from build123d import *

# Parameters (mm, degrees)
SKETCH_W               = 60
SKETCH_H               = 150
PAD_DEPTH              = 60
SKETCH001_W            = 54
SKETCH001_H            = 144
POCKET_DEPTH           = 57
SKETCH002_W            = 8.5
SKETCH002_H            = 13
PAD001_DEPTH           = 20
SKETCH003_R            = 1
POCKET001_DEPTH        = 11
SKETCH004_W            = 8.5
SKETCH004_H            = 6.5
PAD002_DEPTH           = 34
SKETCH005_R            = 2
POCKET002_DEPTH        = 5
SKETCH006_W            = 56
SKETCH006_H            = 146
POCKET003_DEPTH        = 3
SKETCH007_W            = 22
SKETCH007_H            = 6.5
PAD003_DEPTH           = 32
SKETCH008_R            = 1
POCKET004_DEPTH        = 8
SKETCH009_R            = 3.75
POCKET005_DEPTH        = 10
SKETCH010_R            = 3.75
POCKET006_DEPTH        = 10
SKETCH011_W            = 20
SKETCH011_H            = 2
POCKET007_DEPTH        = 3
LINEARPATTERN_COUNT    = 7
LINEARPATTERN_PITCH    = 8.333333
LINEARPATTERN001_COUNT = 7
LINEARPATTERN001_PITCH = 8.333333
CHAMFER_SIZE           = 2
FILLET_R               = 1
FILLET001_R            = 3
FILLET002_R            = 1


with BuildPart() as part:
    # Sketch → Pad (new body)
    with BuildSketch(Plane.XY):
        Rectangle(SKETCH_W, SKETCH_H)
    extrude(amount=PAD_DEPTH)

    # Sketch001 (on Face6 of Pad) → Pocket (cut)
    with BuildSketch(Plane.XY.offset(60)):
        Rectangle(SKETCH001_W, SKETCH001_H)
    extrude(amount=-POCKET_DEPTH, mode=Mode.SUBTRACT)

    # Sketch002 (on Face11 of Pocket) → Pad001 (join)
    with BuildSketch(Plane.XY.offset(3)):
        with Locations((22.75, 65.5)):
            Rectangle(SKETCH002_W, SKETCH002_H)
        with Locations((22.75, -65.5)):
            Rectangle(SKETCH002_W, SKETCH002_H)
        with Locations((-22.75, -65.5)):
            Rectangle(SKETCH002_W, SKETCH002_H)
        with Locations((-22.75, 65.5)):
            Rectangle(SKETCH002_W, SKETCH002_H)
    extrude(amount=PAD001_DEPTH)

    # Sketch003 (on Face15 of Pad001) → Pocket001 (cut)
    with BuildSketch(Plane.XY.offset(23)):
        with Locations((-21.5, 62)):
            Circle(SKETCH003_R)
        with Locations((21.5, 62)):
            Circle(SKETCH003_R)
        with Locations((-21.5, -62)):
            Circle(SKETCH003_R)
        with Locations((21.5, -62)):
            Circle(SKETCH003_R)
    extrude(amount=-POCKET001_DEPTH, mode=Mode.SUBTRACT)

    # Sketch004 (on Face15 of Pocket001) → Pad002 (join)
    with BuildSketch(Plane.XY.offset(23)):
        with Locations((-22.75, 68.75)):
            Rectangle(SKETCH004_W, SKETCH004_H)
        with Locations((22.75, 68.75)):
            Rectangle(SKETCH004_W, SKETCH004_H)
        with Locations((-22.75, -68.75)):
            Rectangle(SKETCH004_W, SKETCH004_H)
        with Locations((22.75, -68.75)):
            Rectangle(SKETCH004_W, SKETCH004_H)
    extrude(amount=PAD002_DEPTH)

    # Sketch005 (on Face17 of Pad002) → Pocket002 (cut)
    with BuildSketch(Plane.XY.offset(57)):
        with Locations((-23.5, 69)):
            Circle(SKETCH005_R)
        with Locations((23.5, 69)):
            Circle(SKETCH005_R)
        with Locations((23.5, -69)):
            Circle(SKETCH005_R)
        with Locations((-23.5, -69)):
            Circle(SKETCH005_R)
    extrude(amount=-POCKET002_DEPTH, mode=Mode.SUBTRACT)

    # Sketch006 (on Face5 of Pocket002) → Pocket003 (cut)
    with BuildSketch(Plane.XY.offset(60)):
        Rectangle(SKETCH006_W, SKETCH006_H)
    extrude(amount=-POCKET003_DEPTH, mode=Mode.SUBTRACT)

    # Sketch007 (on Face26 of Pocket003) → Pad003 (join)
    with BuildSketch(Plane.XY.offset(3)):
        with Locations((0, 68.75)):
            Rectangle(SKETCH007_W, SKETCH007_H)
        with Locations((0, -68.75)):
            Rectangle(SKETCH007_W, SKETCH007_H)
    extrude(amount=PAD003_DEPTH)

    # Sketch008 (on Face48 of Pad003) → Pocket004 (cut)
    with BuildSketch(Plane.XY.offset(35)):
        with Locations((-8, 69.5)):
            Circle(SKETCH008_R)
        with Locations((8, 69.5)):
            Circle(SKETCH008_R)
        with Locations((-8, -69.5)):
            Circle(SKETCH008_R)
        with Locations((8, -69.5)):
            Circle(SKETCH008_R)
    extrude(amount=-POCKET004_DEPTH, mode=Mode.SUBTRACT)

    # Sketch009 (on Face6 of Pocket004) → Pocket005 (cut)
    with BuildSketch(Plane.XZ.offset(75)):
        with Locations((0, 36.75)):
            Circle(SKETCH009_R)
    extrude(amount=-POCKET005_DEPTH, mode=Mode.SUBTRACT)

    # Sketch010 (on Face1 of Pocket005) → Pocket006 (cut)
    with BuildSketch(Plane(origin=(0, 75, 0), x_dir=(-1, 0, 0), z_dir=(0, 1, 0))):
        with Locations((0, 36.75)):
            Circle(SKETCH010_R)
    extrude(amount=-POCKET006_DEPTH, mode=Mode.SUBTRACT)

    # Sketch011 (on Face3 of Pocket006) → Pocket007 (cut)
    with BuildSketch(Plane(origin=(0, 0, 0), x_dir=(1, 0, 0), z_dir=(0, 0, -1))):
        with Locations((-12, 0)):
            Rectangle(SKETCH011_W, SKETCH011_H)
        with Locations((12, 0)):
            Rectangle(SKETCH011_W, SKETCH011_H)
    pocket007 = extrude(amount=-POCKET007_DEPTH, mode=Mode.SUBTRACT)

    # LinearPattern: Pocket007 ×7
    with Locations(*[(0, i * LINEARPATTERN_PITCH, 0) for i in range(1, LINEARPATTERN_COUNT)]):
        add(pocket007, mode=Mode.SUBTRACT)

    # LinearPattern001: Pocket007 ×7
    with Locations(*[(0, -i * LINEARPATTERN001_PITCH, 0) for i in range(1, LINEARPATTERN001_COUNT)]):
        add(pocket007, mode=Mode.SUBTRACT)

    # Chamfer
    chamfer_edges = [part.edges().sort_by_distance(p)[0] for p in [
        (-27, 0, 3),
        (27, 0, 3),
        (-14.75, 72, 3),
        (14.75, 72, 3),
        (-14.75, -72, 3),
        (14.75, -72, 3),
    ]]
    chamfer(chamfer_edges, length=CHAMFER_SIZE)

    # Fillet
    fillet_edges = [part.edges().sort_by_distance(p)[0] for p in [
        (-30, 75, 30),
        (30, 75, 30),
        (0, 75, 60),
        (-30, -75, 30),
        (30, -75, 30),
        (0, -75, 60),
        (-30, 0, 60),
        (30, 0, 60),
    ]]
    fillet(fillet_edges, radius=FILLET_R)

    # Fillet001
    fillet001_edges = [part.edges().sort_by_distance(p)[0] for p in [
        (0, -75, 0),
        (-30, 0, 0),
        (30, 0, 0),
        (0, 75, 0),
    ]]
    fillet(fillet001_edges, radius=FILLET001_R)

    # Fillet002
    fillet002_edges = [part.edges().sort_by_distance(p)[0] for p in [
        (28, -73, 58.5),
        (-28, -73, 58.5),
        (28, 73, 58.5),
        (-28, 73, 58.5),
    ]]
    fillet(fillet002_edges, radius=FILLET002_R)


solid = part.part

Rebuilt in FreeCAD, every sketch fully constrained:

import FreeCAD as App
import Part
import Sketcher
from FreeCAD import Vector


def edges_at(feature, points):
    """Names of the edges that pass closest to the given points."""
    edges = feature.Shape.Edges
    near = lambda p: min(range(len(edges)), key=lambda i: edges[i].distToShape(Part.Vertex(*p))[0])
    return sorted({f"Edge{near(p) + 1}" for p in points})

doc = App.newDocument("Part")
body = doc.addObject("PartDesign::Body", "Body")

sketch1 = doc.addObject("Sketcher::SketchObject", "Sketch")
body.addObject(sketch1)
sketch1.AttachmentSupport = (doc.XY_Plane, [""])
sketch1.MapMode = "FlatFace"
sketch1.addGeometry(Part.LineSegment(Vector(-30, 75, 0), Vector(-30, -75, 0)), False)
sketch1.addGeometry(Part.LineSegment(Vector(-30, -75, 0), Vector(30, -75, 0)), False)
sketch1.addGeometry(Part.LineSegment(Vector(30, -75, 0), Vector(30, 75, 0)), False)
sketch1.addGeometry(Part.LineSegment(Vector(30, 75, 0), Vector(-30, 75, 0)), False)
sketch1.addConstraint(Sketcher.Constraint("Coincident", 0, 2, 1, 1))
sketch1.addConstraint(Sketcher.Constraint("Coincident", 1, 2, 2, 1))
sketch1.addConstraint(Sketcher.Constraint("Coincident", 2, 2, 3, 1))
sketch1.addConstraint(Sketcher.Constraint("Coincident", 3, 2, 0, 1))
sketch1.addConstraint(Sketcher.Constraint("Vertical", 0))
sketch1.addConstraint(Sketcher.Constraint("Horizontal", 1))
sketch1.addConstraint(Sketcher.Constraint("Vertical", 2))
sketch1.addConstraint(Sketcher.Constraint("Horizontal", 3))
sketch1.addConstraint(Sketcher.Constraint("Symmetric", 0, 2, 2, 2, -1, 1))
sketch1.addConstraint(Sketcher.Constraint("DistanceX", 1, 1, 1, 2, 60.0))
sketch1.addConstraint(Sketcher.Constraint("DistanceY", 0, 2, 0, 1, 150.0))
pad1 = doc.addObject("PartDesign::Pad", "Pad")
body.addObject(pad1)
pad1.Profile = sketch1
pad1.Length = 60

sketch2 = doc.addObject("Sketcher::SketchObject", "Sketch001")
body.addObject(sketch2)
sketch2.AttachmentSupport = (doc.XY_Plane, [""])
sketch2.MapMode = "FlatFace"
sketch2.AttachmentOffset = App.Placement(Vector(0, 0, 60), App.Rotation())
sketch2.addGeometry(Part.LineSegment(Vector(-27, 72, 0), Vector(-27, -72, 0)), False)
sketch2.addGeometry(Part.LineSegment(Vector(-27, -72, 0), Vector(27, -72, 0)), False)
sketch2.addGeometry(Part.LineSegment(Vector(27, -72, 0), Vector(27, 72, 0)), False)
sketch2.addGeometry(Part.LineSegment(Vector(27, 72, 0), Vector(-27, 72, 0)), False)
sketch2.addConstraint(Sketcher.Constraint("Coincident", 0, 2, 1, 1))
sketch2.addConstraint(Sketcher.Constraint("Coincident", 1, 2, 2, 1))
sketch2.addConstraint(Sketcher.Constraint("Coincident", 2, 2, 3, 1))
sketch2.addConstraint(Sketcher.Constraint("Coincident", 3, 2, 0, 1))
sketch2.addConstraint(Sketcher.Constraint("Vertical", 0))
sketch2.addConstraint(Sketcher.Constraint("Horizontal", 1))
sketch2.addConstraint(Sketcher.Constraint("Vertical", 2))
sketch2.addConstraint(Sketcher.Constraint("Horizontal", 3))
sketch2.addConstraint(Sketcher.Constraint("Symmetric", 0, 2, 2, 2, -1, 1))
sketch2.addConstraint(Sketcher.Constraint("DistanceX", 1, 1, 1, 2, 54.0))
sketch2.addConstraint(Sketcher.Constraint("DistanceY", 0, 2, 0, 1, 144.0))
pocket1 = doc.addObject("PartDesign::Pocket", "Pocket")
body.addObject(pocket1)
pocket1.Profile = sketch2
pocket1.Length = 57

sketch3 = doc.addObject("Sketcher::SketchObject", "Sketch002")
body.addObject(sketch3)
sketch3.AttachmentSupport = (doc.XY_Plane, [""])
sketch3.MapMode = "FlatFace"
sketch3.AttachmentOffset = App.Placement(Vector(0, 0, 3), App.Rotation())
sketch3.addGeometry(Part.LineSegment(Vector(18, 72, 0), Vector(18, 59, 0)), False)
sketch3.addGeometry(Part.LineSegment(Vector(18, 59, 0), Vector(27, 59, 0)), False)
sketch3.addGeometry(Part.LineSegment(Vector(27, 59, 0), Vector(27, 72, 0)), False)
sketch3.addGeometry(Part.LineSegment(Vector(27, 72, 0), Vector(18, 72, 0)), False)
sketch3.addGeometry(Part.LineSegment(Vector(18, -59, 0), Vector(18, -72, 0)), False)
sketch3.addGeometry(Part.LineSegment(Vector(18, -72, 0), Vector(27, -72, 0)), False)
sketch3.addGeometry(Part.LineSegment(Vector(27, -72, 0), Vector(27, -59, 0)), False)
sketch3.addGeometry(Part.LineSegment(Vector(27, -59, 0), Vector(18, -59, 0)), False)
sketch3.addGeometry(Part.LineSegment(Vector(-27, -59, 0), Vector(-27, -72, 0)), False)
sketch3.addGeometry(Part.LineSegment(Vector(-27, -72, 0), Vector(-18, -72, 0)), False)
sketch3.addGeometry(Part.LineSegment(Vector(-18, -72, 0), Vector(-18, -59, 0)), False)
sketch3.addGeometry(Part.LineSegment(Vector(-18, -59, 0), Vector(-27, -59, 0)), False)
sketch3.addGeometry(Part.LineSegment(Vector(-27, 72, 0), Vector(-27, 59, 0)), False)
sketch3.addGeometry(Part.LineSegment(Vector(-27, 59, 0), Vector(-18, 59, 0)), False)
sketch3.addGeometry(Part.LineSegment(Vector(-18, 59, 0), Vector(-18, 72, 0)), False)
sketch3.addGeometry(Part.LineSegment(Vector(-18, 72, 0), Vector(-27, 72, 0)), False)
sketch3.addConstraint(Sketcher.Constraint("Coincident", 0, 2, 1, 1))
sketch3.addConstraint(Sketcher.Constraint("Coincident", 1, 2, 2, 1))
sketch3.addConstraint(Sketcher.Constraint("Coincident", 2, 2, 3, 1))
sketch3.addConstraint(Sketcher.Constraint("Coincident", 3, 2, 0, 1))
sketch3.addConstraint(Sketcher.Constraint("Coincident", 4, 2, 5, 1))
sketch3.addConstraint(Sketcher.Constraint("Coincident", 5, 2, 6, 1))
sketch3.addConstraint(Sketcher.Constraint("Coincident", 6, 2, 7, 1))
sketch3.addConstraint(Sketcher.Constraint("Coincident", 7, 2, 4, 1))
sketch3.addConstraint(Sketcher.Constraint("Coincident", 8, 2, 9, 1))
sketch3.addConstraint(Sketcher.Constraint("Coincident", 9, 2, 10, 1))
sketch3.addConstraint(Sketcher.Constraint("Coincident", 10, 2, 11, 1))
sketch3.addConstraint(Sketcher.Constraint("Coincident", 11, 2, 8, 1))
sketch3.addConstraint(Sketcher.Constraint("Coincident", 12, 2, 13, 1))
sketch3.addConstraint(Sketcher.Constraint("Coincident", 13, 2, 14, 1))
sketch3.addConstraint(Sketcher.Constraint("Coincident", 14, 2, 15, 1))
sketch3.addConstraint(Sketcher.Constraint("Coincident", 15, 2, 12, 1))
sketch3.addConstraint(Sketcher.Constraint("Vertical", 0))
sketch3.addConstraint(Sketcher.Constraint("Horizontal", 1))
sketch3.addConstraint(Sketcher.Constraint("Vertical", 2))
sketch3.addConstraint(Sketcher.Constraint("Horizontal", 3))
sketch3.addConstraint(Sketcher.Constraint("Vertical", 4))
sketch3.addConstraint(Sketcher.Constraint("Horizontal", 5))
sketch3.addConstraint(Sketcher.Constraint("Vertical", 6))
sketch3.addConstraint(Sketcher.Constraint("Horizontal", 7))
sketch3.addConstraint(Sketcher.Constraint("Vertical", 8))
sketch3.addConstraint(Sketcher.Constraint("Horizontal", 9))
sketch3.addConstraint(Sketcher.Constraint("Vertical", 10))
sketch3.addConstraint(Sketcher.Constraint("Horizontal", 11))
sketch3.addConstraint(Sketcher.Constraint("Vertical", 12))
sketch3.addConstraint(Sketcher.Constraint("Horizontal", 13))
sketch3.addConstraint(Sketcher.Constraint("Vertical", 14))
sketch3.addConstraint(Sketcher.Constraint("Horizontal", 15))
sketch3.addConstraint(Sketcher.Constraint("Symmetric", 2, 2, 8, 2, -1, 1))
sketch3.addConstraint(Sketcher.Constraint("Symmetric", 0, 2, 10, 2, -1, 1))
sketch3.addConstraint(Sketcher.Constraint("Symmetric", 6, 2, 12, 2, -1, 1))
sketch3.addConstraint(Sketcher.Constraint("Symmetric", 4, 2, 14, 2, -1, 1))
sketch3.addConstraint(Sketcher.Constraint("Symmetric", 5, 2, 8, 2, -2))
sketch3.addConstraint(Sketcher.Constraint("Symmetric", 7, 2, 10, 2, -2))
sketch3.addConstraint(Sketcher.Constraint("DistanceY", 0, 2, 0, 1, 13.0))
sketch3.addConstraint(Sketcher.Constraint("DistanceX", 1, 1, 1, 2, 8.5))
sketch3.addConstraint(Sketcher.Constraint("DistanceY", -1, 1, 0, 2, 59.0))
sketch3.addConstraint(Sketcher.Constraint("DistanceX", -1, 1, 1, 2, 27.0))
pad2 = doc.addObject("PartDesign::Pad", "Pad001")
body.addObject(pad2)
pad2.Profile = sketch3
pad2.Length = 20

sketch4 = doc.addObject("Sketcher::SketchObject", "Sketch003")
body.addObject(sketch4)
sketch4.AttachmentSupport = (doc.XY_Plane, [""])
sketch4.MapMode = "FlatFace"
sketch4.AttachmentOffset = App.Placement(Vector(0, 0, 23), App.Rotation())
sketch4.addGeometry(Part.Circle(Vector(-21.5, 62, 0), Vector(0, 0, 1), 1), False)
sketch4.addGeometry(Part.Circle(Vector(21.5, 62, 0), Vector(0, 0, 1), 1), False)
sketch4.addGeometry(Part.Circle(Vector(-21.5, -62, 0), Vector(0, 0, 1), 1), False)
sketch4.addGeometry(Part.Circle(Vector(21.5, -62, 0), Vector(0, 0, 1), 1), False)
sketch4.addConstraint(Sketcher.Constraint("Equal", 0, 1))
sketch4.addConstraint(Sketcher.Constraint("Equal", 1, 2))
sketch4.addConstraint(Sketcher.Constraint("Equal", 2, 3))
sketch4.addConstraint(Sketcher.Constraint("Symmetric", 1, 3, 2, 3, -1, 1))
sketch4.addConstraint(Sketcher.Constraint("Symmetric", 0, 3, 3, 3, -1, 1))
sketch4.addConstraint(Sketcher.Constraint("Symmetric", 0, 3, 1, 3, -2))
sketch4.addConstraint(Sketcher.Constraint("Diameter", 0, 2.0))
sketch4.addConstraint(Sketcher.Constraint("DistanceY", -1, 1, 0, 3, 62.0))
sketch4.addConstraint(Sketcher.Constraint("DistanceX", 0, 3, 1, 3, 43.0))
pocket2 = doc.addObject("PartDesign::Pocket", "Pocket001")
body.addObject(pocket2)
pocket2.Profile = sketch4
pocket2.Length = 11

sketch5 = doc.addObject("Sketcher::SketchObject", "Sketch004")
body.addObject(sketch5)
sketch5.AttachmentSupport = (doc.XY_Plane, [""])
sketch5.MapMode = "FlatFace"
sketch5.AttachmentOffset = App.Placement(Vector(0, 0, 23), App.Rotation())
sketch5.addGeometry(Part.LineSegment(Vector(-27, 72, 0), Vector(-27, 66, 0)), False)
sketch5.addGeometry(Part.LineSegment(Vector(-27, 66, 0), Vector(-18, 66, 0)), False)
sketch5.addGeometry(Part.LineSegment(Vector(-18, 66, 0), Vector(-18, 72, 0)), False)
sketch5.addGeometry(Part.LineSegment(Vector(-18, 72, 0), Vector(-27, 72, 0)), False)
sketch5.addGeometry(Part.LineSegment(Vector(18, 72, 0), Vector(18, 66, 0)), False)
sketch5.addGeometry(Part.LineSegment(Vector(18, 66, 0), Vector(27, 66, 0)), False)
sketch5.addGeometry(Part.LineSegment(Vector(27, 66, 0), Vector(27, 72, 0)), False)
sketch5.addGeometry(Part.LineSegment(Vector(27, 72, 0), Vector(18, 72, 0)), False)
sketch5.addGeometry(Part.LineSegment(Vector(-27, -66, 0), Vector(-27, -72, 0)), False)
sketch5.addGeometry(Part.LineSegment(Vector(-27, -72, 0), Vector(-18, -72, 0)), False)
sketch5.addGeometry(Part.LineSegment(Vector(-18, -72, 0), Vector(-18, -66, 0)), False)
sketch5.addGeometry(Part.LineSegment(Vector(-18, -66, 0), Vector(-27, -66, 0)), False)
sketch5.addGeometry(Part.LineSegment(Vector(18, -66, 0), Vector(18, -72, 0)), False)
sketch5.addGeometry(Part.LineSegment(Vector(18, -72, 0), Vector(27, -72, 0)), False)
sketch5.addGeometry(Part.LineSegment(Vector(27, -72, 0), Vector(27, -66, 0)), False)
sketch5.addGeometry(Part.LineSegment(Vector(27, -66, 0), Vector(18, -66, 0)), False)
sketch5.addConstraint(Sketcher.Constraint("Coincident", 0, 2, 1, 1))
sketch5.addConstraint(Sketcher.Constraint("Coincident", 1, 2, 2, 1))
sketch5.addConstraint(Sketcher.Constraint("Coincident", 2, 2, 3, 1))
sketch5.addConstraint(Sketcher.Constraint("Coincident", 3, 2, 0, 1))
sketch5.addConstraint(Sketcher.Constraint("Coincident", 4, 2, 5, 1))
sketch5.addConstraint(Sketcher.Constraint("Coincident", 5, 2, 6, 1))
sketch5.addConstraint(Sketcher.Constraint("Coincident", 6, 2, 7, 1))
sketch5.addConstraint(Sketcher.Constraint("Coincident", 7, 2, 4, 1))
sketch5.addConstraint(Sketcher.Constraint("Coincident", 8, 2, 9, 1))
sketch5.addConstraint(Sketcher.Constraint("Coincident", 9, 2, 10, 1))
sketch5.addConstraint(Sketcher.Constraint("Coincident", 10, 2, 11, 1))
sketch5.addConstraint(Sketcher.Constraint("Coincident", 11, 2, 8, 1))
sketch5.addConstraint(Sketcher.Constraint("Coincident", 12, 2, 13, 1))
sketch5.addConstraint(Sketcher.Constraint("Coincident", 13, 2, 14, 1))
sketch5.addConstraint(Sketcher.Constraint("Coincident", 14, 2, 15, 1))
sketch5.addConstraint(Sketcher.Constraint("Coincident", 15, 2, 12, 1))
sketch5.addConstraint(Sketcher.Constraint("Vertical", 0))
sketch5.addConstraint(Sketcher.Constraint("Horizontal", 1))
sketch5.addConstraint(Sketcher.Constraint("Vertical", 2))
sketch5.addConstraint(Sketcher.Constraint("Horizontal", 3))
sketch5.addConstraint(Sketcher.Constraint("Vertical", 4))
sketch5.addConstraint(Sketcher.Constraint("Horizontal", 5))
sketch5.addConstraint(Sketcher.Constraint("Vertical", 6))
sketch5.addConstraint(Sketcher.Constraint("Horizontal", 7))
sketch5.addConstraint(Sketcher.Constraint("Vertical", 8))
sketch5.addConstraint(Sketcher.Constraint("Horizontal", 9))
sketch5.addConstraint(Sketcher.Constraint("Vertical", 10))
sketch5.addConstraint(Sketcher.Constraint("Horizontal", 11))
sketch5.addConstraint(Sketcher.Constraint("Vertical", 12))
sketch5.addConstraint(Sketcher.Constraint("Horizontal", 13))
sketch5.addConstraint(Sketcher.Constraint("Vertical", 14))
sketch5.addConstraint(Sketcher.Constraint("Horizontal", 15))
sketch5.addConstraint(Sketcher.Constraint("Symmetric", 6, 2, 8, 2, -1, 1))
sketch5.addConstraint(Sketcher.Constraint("Symmetric", 4, 2, 10, 2, -1, 1))
sketch5.addConstraint(Sketcher.Constraint("Symmetric", 2, 2, 12, 2, -1, 1))
sketch5.addConstraint(Sketcher.Constraint("Symmetric", 0, 2, 14, 2, -1, 1))
sketch5.addConstraint(Sketcher.Constraint("Symmetric", 1, 2, 4, 2, -2))
sketch5.addConstraint(Sketcher.Constraint("Symmetric", 3, 2, 6, 2, -2))
sketch5.addConstraint(Sketcher.Constraint("DistanceX", 1, 1, 1, 2, 8.5))
sketch5.addConstraint(Sketcher.Constraint("DistanceY", 0, 2, 0, 1, 6.5))
sketch5.addConstraint(Sketcher.Constraint("DistanceX", 0, 2, -1, 1, 27.0))
sketch5.addConstraint(Sketcher.Constraint("DistanceY", -1, 1, 2, 2, 72.0))
pad3 = doc.addObject("PartDesign::Pad", "Pad002")
body.addObject(pad3)
pad3.Profile = sketch5
pad3.Length = 34

sketch6 = doc.addObject("Sketcher::SketchObject", "Sketch005")
body.addObject(sketch6)
sketch6.AttachmentSupport = (doc.XY_Plane, [""])
sketch6.MapMode = "FlatFace"
sketch6.AttachmentOffset = App.Placement(Vector(0, 0, 57), App.Rotation())
sketch6.addGeometry(Part.Circle(Vector(-23.5, 69, 0), Vector(0, 0, 1), 2), False)
sketch6.addGeometry(Part.Circle(Vector(23.5, 69, 0), Vector(0, 0, 1), 2), False)
sketch6.addGeometry(Part.Circle(Vector(23.5, -69, 0), Vector(0, 0, 1), 2), False)
sketch6.addGeometry(Part.Circle(Vector(-23.5, -69, 0), Vector(0, 0, 1), 2), False)
sketch6.addConstraint(Sketcher.Constraint("Equal", 0, 1))
sketch6.addConstraint(Sketcher.Constraint("Equal", 1, 2))
sketch6.addConstraint(Sketcher.Constraint("Equal", 2, 3))
sketch6.addConstraint(Sketcher.Constraint("Symmetric", 0, 3, 2, 3, -1, 1))
sketch6.addConstraint(Sketcher.Constraint("Symmetric", 1, 3, 3, 3, -1, 1))
sketch6.addConstraint(Sketcher.Constraint("Symmetric", 0, 3, 1, 3, -2))
sketch6.addConstraint(Sketcher.Constraint("Diameter", 0, 4.0))
sketch6.addConstraint(Sketcher.Constraint("DistanceY", -1, 1, 0, 3, 69.0))
sketch6.addConstraint(Sketcher.Constraint("DistanceX", 0, 3, 1, 3, 47.0))
pocket3 = doc.addObject("PartDesign::Pocket", "Pocket002")
body.addObject(pocket3)
pocket3.Profile = sketch6
pocket3.Length = 5

sketch7 = doc.addObject("Sketcher::SketchObject", "Sketch006")
body.addObject(sketch7)
sketch7.AttachmentSupport = (doc.XY_Plane, [""])
sketch7.MapMode = "FlatFace"
sketch7.AttachmentOffset = App.Placement(Vector(0, 0, 60), App.Rotation())
sketch7.addGeometry(Part.LineSegment(Vector(-28, 73, 0), Vector(-28, -73, 0)), False)
sketch7.addGeometry(Part.LineSegment(Vector(-28, -73, 0), Vector(28, -73, 0)), False)
sketch7.addGeometry(Part.LineSegment(Vector(28, -73, 0), Vector(28, 73, 0)), False)
sketch7.addGeometry(Part.LineSegment(Vector(28, 73, 0), Vector(-28, 73, 0)), False)
sketch7.addConstraint(Sketcher.Constraint("Coincident", 0, 2, 1, 1))
sketch7.addConstraint(Sketcher.Constraint("Coincident", 1, 2, 2, 1))
sketch7.addConstraint(Sketcher.Constraint("Coincident", 2, 2, 3, 1))
sketch7.addConstraint(Sketcher.Constraint("Coincident", 3, 2, 0, 1))
sketch7.addConstraint(Sketcher.Constraint("Vertical", 0))
sketch7.addConstraint(Sketcher.Constraint("Horizontal", 1))
sketch7.addConstraint(Sketcher.Constraint("Vertical", 2))
sketch7.addConstraint(Sketcher.Constraint("Horizontal", 3))
sketch7.addConstraint(Sketcher.Constraint("Symmetric", 0, 2, 2, 2, -1, 1))
sketch7.addConstraint(Sketcher.Constraint("DistanceX", 1, 1, 1, 2, 56.0))
sketch7.addConstraint(Sketcher.Constraint("DistanceY", 0, 2, 0, 1, 146.0))
pocket4 = doc.addObject("PartDesign::Pocket", "Pocket003")
body.addObject(pocket4)
pocket4.Profile = sketch7
pocket4.Length = 3

sketch8 = doc.addObject("Sketcher::SketchObject", "Sketch007")
body.addObject(sketch8)
sketch8.AttachmentSupport = (doc.XY_Plane, [""])
sketch8.MapMode = "FlatFace"
sketch8.AttachmentOffset = App.Placement(Vector(0, 0, 3), App.Rotation())
sketch8.addGeometry(Part.LineSegment(Vector(-11, 72, 0), Vector(-11, 66, 0)), False)
sketch8.addGeometry(Part.LineSegment(Vector(-11, 66, 0), Vector(11, 66, 0)), False)
sketch8.addGeometry(Part.LineSegment(Vector(11, 66, 0), Vector(11, 72, 0)), False)
sketch8.addGeometry(Part.LineSegment(Vector(11, 72, 0), Vector(-11, 72, 0)), False)
sketch8.addGeometry(Part.LineSegment(Vector(-11, -66, 0), Vector(-11, -72, 0)), False)
sketch8.addGeometry(Part.LineSegment(Vector(-11, -72, 0), Vector(11, -72, 0)), False)
sketch8.addGeometry(Part.LineSegment(Vector(11, -72, 0), Vector(11, -66, 0)), False)
sketch8.addGeometry(Part.LineSegment(Vector(11, -66, 0), Vector(-11, -66, 0)), False)
sketch8.addConstraint(Sketcher.Constraint("Coincident", 0, 2, 1, 1))
sketch8.addConstraint(Sketcher.Constraint("Coincident", 1, 2, 2, 1))
sketch8.addConstraint(Sketcher.Constraint("Coincident", 2, 2, 3, 1))
sketch8.addConstraint(Sketcher.Constraint("Coincident", 3, 2, 0, 1))
sketch8.addConstraint(Sketcher.Constraint("Coincident", 4, 2, 5, 1))
sketch8.addConstraint(Sketcher.Constraint("Coincident", 5, 2, 6, 1))
sketch8.addConstraint(Sketcher.Constraint("Coincident", 6, 2, 7, 1))
sketch8.addConstraint(Sketcher.Constraint("Coincident", 7, 2, 4, 1))
sketch8.addConstraint(Sketcher.Constraint("Vertical", 0))
sketch8.addConstraint(Sketcher.Constraint("Horizontal", 1))
sketch8.addConstraint(Sketcher.Constraint("Vertical", 2))
sketch8.addConstraint(Sketcher.Constraint("Horizontal", 3))
sketch8.addConstraint(Sketcher.Constraint("Vertical", 4))
sketch8.addConstraint(Sketcher.Constraint("Horizontal", 5))
sketch8.addConstraint(Sketcher.Constraint("Vertical", 6))
sketch8.addConstraint(Sketcher.Constraint("Horizontal", 7))
sketch8.addConstraint(Sketcher.Constraint("Symmetric", 2, 2, 4, 2, -1, 1))
sketch8.addConstraint(Sketcher.Constraint("Symmetric", 0, 2, 6, 2, -1, 1))
sketch8.addConstraint(Sketcher.Constraint("Vertical", 3, 2, 4, 2))
sketch8.addConstraint(Sketcher.Constraint("DistanceX", 1, 1, 1, 2, 22.0))
sketch8.addConstraint(Sketcher.Constraint("DistanceY", 0, 2, 0, 1, 6.5))
sketch8.addConstraint(Sketcher.Constraint("DistanceY", -1, 1, 2, 2, 72.0))
pad4 = doc.addObject("PartDesign::Pad", "Pad003")
body.addObject(pad4)
pad4.Profile = sketch8
pad4.Length = 32

sketch9 = doc.addObject("Sketcher::SketchObject", "Sketch008")
body.addObject(sketch9)
sketch9.AttachmentSupport = (doc.XY_Plane, [""])
sketch9.MapMode = "FlatFace"
sketch9.AttachmentOffset = App.Placement(Vector(0, 0, 35), App.Rotation())
sketch9.addGeometry(Part.Circle(Vector(-8, 69.5, 0), Vector(0, 0, 1), 1), False)
sketch9.addGeometry(Part.Circle(Vector(8, 69.5, 0), Vector(0, 0, 1), 1), False)
sketch9.addGeometry(Part.Circle(Vector(-8, -69.5, 0), Vector(0, 0, 1), 1), False)
sketch9.addGeometry(Part.Circle(Vector(8, -69.5, 0), Vector(0, 0, 1), 1), False)
sketch9.addConstraint(Sketcher.Constraint("Equal", 0, 1))
sketch9.addConstraint(Sketcher.Constraint("Equal", 1, 2))
sketch9.addConstraint(Sketcher.Constraint("Equal", 2, 3))
sketch9.addConstraint(Sketcher.Constraint("Symmetric", 1, 3, 2, 3, -1, 1))
sketch9.addConstraint(Sketcher.Constraint("Symmetric", 0, 3, 3, 3, -1, 1))
sketch9.addConstraint(Sketcher.Constraint("Symmetric", 0, 3, 1, 3, -2))
sketch9.addConstraint(Sketcher.Constraint("Diameter", 0, 2.0))
sketch9.addConstraint(Sketcher.Constraint("DistanceX", 0, 3, -1, 1, 8.0))
sketch9.addConstraint(Sketcher.Constraint("DistanceY", 2, 3, 0, 3, 139.0))
pocket5 = doc.addObject("PartDesign::Pocket", "Pocket004")
body.addObject(pocket5)
pocket5.Profile = sketch9
pocket5.Length = 8

sketch10 = doc.addObject("Sketcher::SketchObject", "Sketch009")
body.addObject(sketch10)
sketch10.AttachmentSupport = (doc.XZ_Plane, [""])
sketch10.MapMode = "FlatFace"
sketch10.AttachmentOffset = App.Placement(Vector(0, 0, 75), App.Rotation())
sketch10.addGeometry(Part.Circle(Vector(0, 36.8, 0), Vector(0, 0, 1), 3.8), False)
sketch10.addConstraint(Sketcher.Constraint("PointOnObject", 0, 3, -2))
sketch10.addConstraint(Sketcher.Constraint("Diameter", 0, 7.5))
sketch10.addConstraint(Sketcher.Constraint("DistanceY", -1, 1, 0, 3, 36.75))
pocket6 = doc.addObject("PartDesign::Pocket", "Pocket005")
body.addObject(pocket6)
pocket6.Profile = sketch10
pocket6.Length = 10

sketch11 = doc.addObject("Sketcher::SketchObject", "Sketch010")
body.addObject(sketch11)
sketch11.AttachmentSupport = (doc.XZ_Plane, [""])
sketch11.MapMode = "FlatFace"
sketch11.AttachmentOffset = App.Placement(Vector(0, 0, -75), App.Rotation())
sketch11.addGeometry(Part.Circle(Vector(0, 36.8, 0), Vector(0, 0, 1), 3.8), False)
sketch11.addConstraint(Sketcher.Constraint("PointOnObject", 0, 3, -2))
sketch11.addConstraint(Sketcher.Constraint("Diameter", 0, 7.5))
sketch11.addConstraint(Sketcher.Constraint("DistanceY", -1, 1, 0, 3, 36.75))
pocket7 = doc.addObject("PartDesign::Pocket", "Pocket006")
body.addObject(pocket7)
pocket7.Profile = sketch11
pocket7.Length = 10
pocket7.Reversed = True

sketch12 = doc.addObject("Sketcher::SketchObject", "Sketch011")
body.addObject(sketch12)
sketch12.AttachmentSupport = (doc.XY_Plane, [""])
sketch12.MapMode = "FlatFace"
sketch12.addGeometry(Part.LineSegment(Vector(-22, -1, 0), Vector(-22, 1, 0)), False)
sketch12.addGeometry(Part.LineSegment(Vector(-22, 1, 0), Vector(-2, 1, 0)), False)
sketch12.addGeometry(Part.LineSegment(Vector(-2, 1, 0), Vector(-2, -1, 0)), False)
sketch12.addGeometry(Part.LineSegment(Vector(-2, -1, 0), Vector(-22, -1, 0)), False)
sketch12.addGeometry(Part.LineSegment(Vector(2, -1, 0), Vector(2, 1, 0)), False)
sketch12.addGeometry(Part.LineSegment(Vector(2, 1, 0), Vector(22, 1, 0)), False)
sketch12.addGeometry(Part.LineSegment(Vector(22, 1, 0), Vector(22, -1, 0)), False)
sketch12.addGeometry(Part.LineSegment(Vector(22, -1, 0), Vector(2, -1, 0)), False)
sketch12.addConstraint(Sketcher.Constraint("Coincident", 0, 2, 1, 1))
sketch12.addConstraint(Sketcher.Constraint("Coincident", 1, 2, 2, 1))
sketch12.addConstraint(Sketcher.Constraint("Coincident", 2, 2, 3, 1))
sketch12.addConstraint(Sketcher.Constraint("Coincident", 3, 2, 0, 1))
sketch12.addConstraint(Sketcher.Constraint("Coincident", 4, 2, 5, 1))
sketch12.addConstraint(Sketcher.Constraint("Coincident", 5, 2, 6, 1))
sketch12.addConstraint(Sketcher.Constraint("Coincident", 6, 2, 7, 1))
sketch12.addConstraint(Sketcher.Constraint("Coincident", 7, 2, 4, 1))
sketch12.addConstraint(Sketcher.Constraint("Vertical", 0))
sketch12.addConstraint(Sketcher.Constraint("Horizontal", 1))
sketch12.addConstraint(Sketcher.Constraint("Vertical", 2))
sketch12.addConstraint(Sketcher.Constraint("Horizontal", 3))
sketch12.addConstraint(Sketcher.Constraint("Vertical", 4))
sketch12.addConstraint(Sketcher.Constraint("Horizontal", 5))
sketch12.addConstraint(Sketcher.Constraint("Vertical", 6))
sketch12.addConstraint(Sketcher.Constraint("Horizontal", 7))
sketch12.addConstraint(Sketcher.Constraint("Symmetric", 2, 2, 4, 2, -1, 1))
sketch12.addConstraint(Sketcher.Constraint("Symmetric", 0, 2, 6, 2, -1, 1))
sketch12.addConstraint(Sketcher.Constraint("Horizontal", 1, 2, 4, 2))
sketch12.addConstraint(Sketcher.Constraint("DistanceX", 1, 1, 1, 2, 20.0))
sketch12.addConstraint(Sketcher.Constraint("DistanceY", 0, 1, 0, 2, 2.0))
sketch12.addConstraint(Sketcher.Constraint("DistanceX", 0, 2, -1, 1, 22.0))
pocket8 = doc.addObject("PartDesign::Pocket", "Pocket007")
body.addObject(pocket8)
pocket8.Profile = sketch12
pocket8.Length = 3
pocket8.Reversed = True
doc.recompute()

linearpattern = doc.addObject("PartDesign::LinearPattern", "LinearPattern")
body.addObject(linearpattern)
linearpattern.Originals = [pocket8]
linearpattern.Direction = (doc.Y_Axis, [""])
linearpattern.Mode = "offset"
linearpattern.Offset = 8.333333
linearpattern.Occurrences = 7
body.Tip = linearpattern
doc.recompute()

linearpattern2 = doc.addObject("PartDesign::LinearPattern", "LinearPattern001")
body.addObject(linearpattern2)
linearpattern2.Originals = [pocket8]
linearpattern2.Direction = (doc.Y_Axis, [""])
linearpattern2.Mode = "offset"
linearpattern2.Offset = 8.333333
linearpattern2.Occurrences = 7
linearpattern2.Reversed = True
body.Tip = linearpattern2
doc.recompute()

chamfer = doc.addObject("PartDesign::Chamfer", "Chamfer")
body.addObject(chamfer)
chamfer.Base = (linearpattern2, edges_at(linearpattern2, [
    (-27, 0, 3),
    (27, 0, 3),
    (-14.75, 72, 3),
    (14.75, 72, 3),
    (-14.75, -72, 3),
    (14.75, -72, 3),
]))
chamfer.Size = 2
doc.recompute()

fillet = doc.addObject("PartDesign::Fillet", "Fillet")
body.addObject(fillet)
fillet.Base = (chamfer, edges_at(chamfer, [
    (-30, 75, 30),
    (30, 75, 30),
    (0, 75, 60),
    (-30, -75, 30),
    (30, -75, 30),
    (0, -75, 60),
    (-30, 0, 60),
    (30, 0, 60),
]))
fillet.Radius = 1
doc.recompute()

fillet2 = doc.addObject("PartDesign::Fillet", "Fillet001")
body.addObject(fillet2)
fillet2.Base = (fillet, edges_at(fillet, [
    (0, -75, 0),
    (-30, 0, 0),
    (30, 0, 0),
    (0, 75, 0),
]))
fillet2.Radius = 3
doc.recompute()

fillet3 = doc.addObject("PartDesign::Fillet", "Fillet002")
body.addObject(fillet3)
fillet3.Base = (fillet2, edges_at(fillet2, [
    (28, -73, 58.5),
    (-28, -73, 58.5),
    (28, 73, 58.5),
    (-28, 73, 58.5),
]))
fillet3.Radius = 1

doc.recompute()
